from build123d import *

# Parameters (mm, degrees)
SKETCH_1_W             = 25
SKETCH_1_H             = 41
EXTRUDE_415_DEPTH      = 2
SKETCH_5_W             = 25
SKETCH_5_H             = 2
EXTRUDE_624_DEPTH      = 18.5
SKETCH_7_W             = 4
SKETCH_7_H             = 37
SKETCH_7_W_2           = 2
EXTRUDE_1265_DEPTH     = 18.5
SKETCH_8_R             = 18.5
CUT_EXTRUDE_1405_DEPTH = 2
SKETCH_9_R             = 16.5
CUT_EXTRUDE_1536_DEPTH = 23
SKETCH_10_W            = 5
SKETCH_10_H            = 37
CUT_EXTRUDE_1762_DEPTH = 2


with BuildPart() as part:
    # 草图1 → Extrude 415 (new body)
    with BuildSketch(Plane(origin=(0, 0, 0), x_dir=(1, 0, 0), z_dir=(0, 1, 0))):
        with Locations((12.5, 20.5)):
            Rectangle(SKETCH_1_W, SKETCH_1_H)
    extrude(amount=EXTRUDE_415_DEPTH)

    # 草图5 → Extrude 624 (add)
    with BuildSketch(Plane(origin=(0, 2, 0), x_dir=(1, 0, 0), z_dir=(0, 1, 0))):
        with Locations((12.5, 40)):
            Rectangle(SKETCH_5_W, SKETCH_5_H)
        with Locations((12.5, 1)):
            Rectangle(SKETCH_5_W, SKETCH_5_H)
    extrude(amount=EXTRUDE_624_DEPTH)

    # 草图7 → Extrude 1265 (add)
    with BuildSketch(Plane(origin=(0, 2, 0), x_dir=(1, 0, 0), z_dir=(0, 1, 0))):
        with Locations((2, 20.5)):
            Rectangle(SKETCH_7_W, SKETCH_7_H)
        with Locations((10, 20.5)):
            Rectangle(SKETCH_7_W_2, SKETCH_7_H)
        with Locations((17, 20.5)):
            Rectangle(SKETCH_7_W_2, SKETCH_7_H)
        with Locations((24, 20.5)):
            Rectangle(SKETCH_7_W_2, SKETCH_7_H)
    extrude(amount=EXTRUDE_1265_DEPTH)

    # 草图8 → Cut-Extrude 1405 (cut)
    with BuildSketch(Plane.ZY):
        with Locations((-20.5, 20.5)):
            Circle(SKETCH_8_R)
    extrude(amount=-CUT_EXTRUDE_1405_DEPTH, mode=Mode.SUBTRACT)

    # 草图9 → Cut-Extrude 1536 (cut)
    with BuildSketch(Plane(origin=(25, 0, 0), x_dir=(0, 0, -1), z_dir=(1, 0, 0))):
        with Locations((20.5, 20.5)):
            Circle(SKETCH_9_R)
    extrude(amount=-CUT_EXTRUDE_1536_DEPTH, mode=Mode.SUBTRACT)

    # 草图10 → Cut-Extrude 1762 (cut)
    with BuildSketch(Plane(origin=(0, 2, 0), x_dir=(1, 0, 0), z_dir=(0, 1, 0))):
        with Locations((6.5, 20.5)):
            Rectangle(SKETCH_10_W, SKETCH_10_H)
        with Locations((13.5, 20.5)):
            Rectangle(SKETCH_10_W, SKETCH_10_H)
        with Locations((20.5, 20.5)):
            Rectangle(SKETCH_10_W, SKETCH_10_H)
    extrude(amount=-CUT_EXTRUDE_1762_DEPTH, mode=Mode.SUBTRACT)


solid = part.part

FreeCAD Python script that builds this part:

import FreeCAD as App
import Part
import Sketcher
from FreeCAD import Vector
Q = App.Units.Quantity


def add_polygon(sketch, points):
    """Adds a closed chain of lines whose ends are joined by coincident constraints."""
    first, n = sketch.GeometryCount, len(points)
    for a, b in zip(points, points[1:] + points[:1]):
        sketch.addGeometry(Part.LineSegment(App.Vector(*a, 0), App.Vector(*b, 0)), False)
    for i in range(n):
        sketch.addConstraint(Sketcher.Constraint("Coincident", first + i, 2, first + (i + 1) % n, 1))

doc = App.newDocument("Part")
body = doc.addObject("PartDesign::Body", "Body")

# Sketch on XZ plane
sketch1 = body.newObject("Sketcher::SketchObject", "Sketch")
sketch1.AttachmentSupport = (doc.getObject("XZ_Plane"), [""])
sketch1.MapMode = "FlatFace"
add_polygon(sketch1, [(0, -41), (0, 0), (25, 0), (25, -41)])  # lines 0-3
sketch1.addConstraint(Sketcher.Constraint("Vertical", 0))
sketch1.addConstraint(Sketcher.Constraint("Horizontal", 1))
sketch1.addConstraint(Sketcher.Constraint("Vertical", 2))
sketch1.addConstraint(Sketcher.Constraint("Horizontal", 3))
sketch1.addConstraint(Sketcher.Constraint("Coincident", 0, 2, -1, 1))
sketch1.addConstraint(Sketcher.Constraint("DistanceX", 1, 1, 1, 2, Q("25 mm")))
sketch1.addConstraint(Sketcher.Constraint("DistanceY", 0, 1, 0, 2, Q("41 mm")))
pad1 = body.newObject("PartDesign::Pad", "Pad")
pad1.Profile = sketch1
pad1.Length = 2
pad1.Reversed = True

# Sketch on XZ plane
sketch2 = body.newObject("Sketcher::SketchObject", "Sketch001")
sketch2.AttachmentSupport = (doc.getObject("XZ_Plane"), [""])
sketch2.MapMode = "FlatFace"
sketch2.AttachmentOffset = App.Placement(Vector(0, 0, -2), App.Rotation())
add_polygon(sketch2, [(0, -41), (0, -39), (25, -39), (25, -41)])  # lines 0-3
add_polygon(sketch2, [(0, -2), (0, 0), (25, 0), (25, -2)])  # lines 4-7
sketch2.addConstraint(Sketcher.Constraint("Vertical", 0))
sketch2.addConstraint(Sketcher.Constraint("Horizontal", 1))
sketch2.addConstraint(Sketcher.Constraint("Vertical", 2))
sketch2.addConstraint(Sketcher.Constraint("Horizontal", 3))
sketch2.addConstraint(Sketcher.Constraint("Vertical", 4))
sketch2.addConstraint(Sketcher.Constraint("Horizontal", 5))
sketch2.addConstraint(Sketcher.Constraint("Vertical", 6))
sketch2.addConstraint(Sketcher.Constraint("Horizontal", 7))
sketch2.addConstraint(Sketcher.Constraint("Coincident", 4, 2, -1, 1))
sketch2.addConstraint(Sketcher.Constraint("PointOnObject", 0, 2, -2))
sketch2.addConstraint(Sketcher.Constraint("Vertical", 2, 2, 5, 2))
sketch2.addConstraint(Sketcher.Constraint("Equal", 2, 4))
sketch2.addConstraint(Sketcher.Constraint("DistanceX", 1, 1, 1, 2, Q("25 mm")))
sketch2.addConstraint(Sketcher.Constraint("DistanceY", 0, 1, 0, 2, Q("2 mm")))
sketch2.addConstraint(Sketcher.Constraint("DistanceY", 0, 2, -1, 1, Q("39 mm")))
pad2 = body.newObject("PartDesign::Pad", "Pad001")
pad2.Profile = sketch2
pad2.Length = 18.5
pad2.Reversed = True

# Sketch on XZ plane
sketch3 = body.newObject("Sketcher::SketchObject", "Sketch002")
sketch3.AttachmentSupport = (doc.getObject("XZ_Plane"), [""])
sketch3.MapMode = "FlatFace"
sketch3.AttachmentOffset = App.Placement(Vector(0, 0, -2), App.Rotation())
add_polygon(sketch3, [(0, -39), (0, -2), (4, -2), (4, -39)])  # lines 0-3
add_polygon(sketch3, [(9, -39), (9, -2), (11, -2), (11, -39)])  # lines 4-7
add_polygon(sketch3, [(16, -39), (16, -2), (18, -2), (18, -39)])  # lines 8-11
add_polygon(sketch3, [(23, -39), (23, -2), (25, -2), (25, -39)])  # lines 12-15
sketch3.addConstraint(Sketcher.Constraint("Vertical", 0))
sketch3.addConstraint(Sketcher.Constraint("Horizontal", 1))
sketch3.addConstraint(Sketcher.Constraint("Vertical", 2))
sketch3.addConstraint(Sketcher.Constraint("Horizontal", 3))
sketch3.addConstraint(Sketcher.Constraint("Vertical", 4))
sketch3.addConstraint(Sketcher.Constraint("Horizontal", 5))
sketch3.addConstraint(Sketcher.Constraint("Vertical", 6))
sketch3.addConstraint(Sketcher.Constraint("Horizontal", 7))
sketch3.addConstraint(Sketcher.Constraint("Vertical", 8))
sketch3.addConstraint(Sketcher.Constraint("Horizontal", 9))
sketch3.addConstraint(Sketcher.Constraint("Vertical", 10))
sketch3.addConstraint(Sketcher.Constraint("Horizontal", 11))
sketch3.addConstraint(Sketcher.Constraint("Vertical", 12))
sketch3.addConstraint(Sketcher.Constraint("Horizontal", 13))
sketch3.addConstraint(Sketcher.Constraint("Vertical", 14))
sketch3.addConstraint(Sketcher.Constraint("Horizontal", 15))
sketch3.addConstraint(Sketcher.Constraint("PointOnObject", 0, 2, -2))
sketch3.addConstraint(Sketcher.Constraint("Horizontal", 1, 2, 4, 2))
sketch3.addConstraint(Sketcher.Constraint("Horizontal", 3, 2, 6, 2))
sketch3.addConstraint(Sketcher.Constraint("Horizontal", 5, 2, 8, 2))
sketch3.addConstraint(Sketcher.Constraint("Horizontal", 7, 2, 10, 2))
sketch3.addConstraint(Sketcher.Constraint("Horizontal", 9, 2, 12, 2))
sketch3.addConstraint(Sketcher.Constraint("Horizontal", 11, 2, 14, 2))
sketch3.addConstraint(Sketcher.Constraint("Equal", 7, 9))
sketch3.addConstraint(Sketcher.Constraint("Equal", 11, 13))
sketch3.addConstraint(Sketcher.Constraint("DistanceX", 1, 1, 1, 2, Q("4 mm")))
sketch3.addConstraint(Sketcher.Constraint("DistanceX", 5, 1, 5, 2, Q("2 mm")))
sketch3.addConstraint(Sketcher.Constraint("DistanceY", 0, 1, 0, 2, Q("37 mm")))
sketch3.addConstraint(Sketcher.Constraint("DistanceY", 0, 2, -1, 1, Q("2 mm")))
sketch3.addConstraint(Sketcher.Constraint("DistanceX", -1, 1, 4, 2, Q("9 mm")))
sketch3.addConstraint(Sketcher.Constraint("DistanceX", -1, 1, 8, 2, Q("16 mm")))
sketch3.addConstraint(Sketcher.Constraint("DistanceX", -1, 1, 12, 2, Q("23 mm")))
pad3 = body.newObject("PartDesign::Pad", "Pad002")
pad3.Profile = sketch3
pad3.Length = 18.5
pad3.Reversed = True

# Sketch on YZ plane
sketch4 = body.newObject("Sketcher::SketchObject", "Sketch003")
sketch4.AttachmentSupport = (doc.getObject("YZ_Plane"), [""])
sketch4.MapMode = "FlatFace"
sketch4.addGeometry(Part.Circle(Vector(20.5, -20.5, 0), Vector(0, 0, 1), 18.5), False)
sketch4.addConstraint(Sketcher.Constraint("Diameter", 0, Q("37 mm")))
sketch4.addConstraint(Sketcher.Constraint("DistanceX", -1, 1, 0, 3, Q("20.5 mm")))
sketch4.addConstraint(Sketcher.Constraint("DistanceY", 0, 3, -1, 1, Q("20.5 mm")))
pocket1 = body.newObject("PartDesign::Pocket", "Pocket")
pocket1.Profile = sketch4
pocket1.Length = 2
pocket1.Reversed = True

# Sketch on YZ plane
sketch5 = body.newObject("Sketcher::SketchObject", "Sketch004")
sketch5.AttachmentSupport = (doc.getObject("YZ_Plane"), [""])
sketch5.MapMode = "FlatFace"
sketch5.AttachmentOffset = App.Placement(Vector(0, 0, 25), App.Rotation())
sketch5.addGeometry(Part.Circle(Vector(20.5, -20.5, 0), Vector(0, 0, 1), 16.5), False)
sketch5.addConstraint(Sketcher.Constraint("Diameter", 0, Q("33 mm")))
sketch5.addConstraint(Sketcher.Constraint("DistanceX", -1, 1, 0, 3, Q("20.5 mm")))
sketch5.addConstraint(Sketcher.Constraint("DistanceY", 0, 3, -1, 1, Q("20.5 mm")))
pocket2 = body.newObject("PartDesign::Pocket", "Pocket001")
pocket2.Profile = sketch5
pocket2.Length = 23

# Sketch on XZ plane
sketch6 = body.newObject("Sketcher::SketchObject", "Sketch005")
sketch6.AttachmentSupport = (doc.getObject("XZ_Plane"), [""])
sketch6.MapMode = "FlatFace"
sketch6.AttachmentOffset = App.Placement(Vector(0, 0, -2), App.Rotation())
add_polygon(sketch6, [(4, -39), (4, -2), (9, -2), (9, -39)])  # lines 0-3
add_polygon(sketch6, [(11, -39), (11, -2), (16, -2), (16, -39)])  # lines 4-7
add_polygon(sketch6, [(18, -39), (18, -2), (23, -2), (23, -39)])  # lines 8-11
sketch6.addConstraint(Sketcher.Constraint("Vertical", 0))
sketch6.addConstraint(Sketcher.Constraint("Horizontal", 1))
sketch6.addConstraint(Sketcher.Constraint("Vertical", 2))
sketch6.addConstraint(Sketcher.Constraint("Horizontal", 3))
sketch6.addConstraint(Sketcher.Constraint("Vertical", 4))
sketch6.addConstraint(Sketcher.Constraint("Horizontal", 5))
sketch6.addConstraint(Sketcher.Constraint("Vertical", 6))
sketch6.addConstraint(Sketcher.Constraint("Horizontal", 7))
sketch6.addConstraint(Sketcher.Constraint("Vertical", 8))
sketch6.addConstraint(Sketcher.Constraint("Horizontal", 9))
sketch6.addConstraint(Sketcher.Constraint("Vertical", 10))
sketch6.addConstraint(Sketcher.Constraint("Horizontal", 11))
sketch6.addConstraint(Sketcher.Constraint("Horizontal", 1, 2, 4, 2))
sketch6.addConstraint(Sketcher.Constraint("Horizontal", 3, 2, 6, 2))
sketch6.addConstraint(Sketcher.Constraint("Horizontal", 5, 2, 8, 2))
sketch6.addConstraint(Sketcher.Constraint("Horizontal", 7, 2, 10, 2))
sketch6.addConstraint(Sketcher.Constraint("Equal", 3, 5))
sketch6.addConstraint(Sketcher.Constraint("Equal", 7, 9))
sketch6.addConstraint(Sketcher.Constraint("DistanceX", 1, 1, 1, 2, Q("5 mm")))
sketch6.addConstraint(Sketcher.Constraint("DistanceY", 0, 1, 0, 2, Q("37 mm")))
sketch6.addConstraint(Sketcher.Constraint("DistanceX", -1, 1, 0, 2, Q("4 mm")))
sketch6.addConstraint(Sketcher.Constraint("DistanceY", 0, 2, -1, 1, Q("2 mm")))
sketch6.addConstraint(Sketcher.Constraint("DistanceX", -1, 1, 4, 2, Q("11 mm")))
sketch6.addConstraint(Sketcher.Constraint("DistanceX", -1, 1, 8, 2, Q("18 mm")))
pocket3 = body.newObject("PartDesign::Pocket", "Pocket002")
pocket3.Profile = sketch6
pocket3.Length = 2
pocket3.Reversed = True

doc.recompute()
